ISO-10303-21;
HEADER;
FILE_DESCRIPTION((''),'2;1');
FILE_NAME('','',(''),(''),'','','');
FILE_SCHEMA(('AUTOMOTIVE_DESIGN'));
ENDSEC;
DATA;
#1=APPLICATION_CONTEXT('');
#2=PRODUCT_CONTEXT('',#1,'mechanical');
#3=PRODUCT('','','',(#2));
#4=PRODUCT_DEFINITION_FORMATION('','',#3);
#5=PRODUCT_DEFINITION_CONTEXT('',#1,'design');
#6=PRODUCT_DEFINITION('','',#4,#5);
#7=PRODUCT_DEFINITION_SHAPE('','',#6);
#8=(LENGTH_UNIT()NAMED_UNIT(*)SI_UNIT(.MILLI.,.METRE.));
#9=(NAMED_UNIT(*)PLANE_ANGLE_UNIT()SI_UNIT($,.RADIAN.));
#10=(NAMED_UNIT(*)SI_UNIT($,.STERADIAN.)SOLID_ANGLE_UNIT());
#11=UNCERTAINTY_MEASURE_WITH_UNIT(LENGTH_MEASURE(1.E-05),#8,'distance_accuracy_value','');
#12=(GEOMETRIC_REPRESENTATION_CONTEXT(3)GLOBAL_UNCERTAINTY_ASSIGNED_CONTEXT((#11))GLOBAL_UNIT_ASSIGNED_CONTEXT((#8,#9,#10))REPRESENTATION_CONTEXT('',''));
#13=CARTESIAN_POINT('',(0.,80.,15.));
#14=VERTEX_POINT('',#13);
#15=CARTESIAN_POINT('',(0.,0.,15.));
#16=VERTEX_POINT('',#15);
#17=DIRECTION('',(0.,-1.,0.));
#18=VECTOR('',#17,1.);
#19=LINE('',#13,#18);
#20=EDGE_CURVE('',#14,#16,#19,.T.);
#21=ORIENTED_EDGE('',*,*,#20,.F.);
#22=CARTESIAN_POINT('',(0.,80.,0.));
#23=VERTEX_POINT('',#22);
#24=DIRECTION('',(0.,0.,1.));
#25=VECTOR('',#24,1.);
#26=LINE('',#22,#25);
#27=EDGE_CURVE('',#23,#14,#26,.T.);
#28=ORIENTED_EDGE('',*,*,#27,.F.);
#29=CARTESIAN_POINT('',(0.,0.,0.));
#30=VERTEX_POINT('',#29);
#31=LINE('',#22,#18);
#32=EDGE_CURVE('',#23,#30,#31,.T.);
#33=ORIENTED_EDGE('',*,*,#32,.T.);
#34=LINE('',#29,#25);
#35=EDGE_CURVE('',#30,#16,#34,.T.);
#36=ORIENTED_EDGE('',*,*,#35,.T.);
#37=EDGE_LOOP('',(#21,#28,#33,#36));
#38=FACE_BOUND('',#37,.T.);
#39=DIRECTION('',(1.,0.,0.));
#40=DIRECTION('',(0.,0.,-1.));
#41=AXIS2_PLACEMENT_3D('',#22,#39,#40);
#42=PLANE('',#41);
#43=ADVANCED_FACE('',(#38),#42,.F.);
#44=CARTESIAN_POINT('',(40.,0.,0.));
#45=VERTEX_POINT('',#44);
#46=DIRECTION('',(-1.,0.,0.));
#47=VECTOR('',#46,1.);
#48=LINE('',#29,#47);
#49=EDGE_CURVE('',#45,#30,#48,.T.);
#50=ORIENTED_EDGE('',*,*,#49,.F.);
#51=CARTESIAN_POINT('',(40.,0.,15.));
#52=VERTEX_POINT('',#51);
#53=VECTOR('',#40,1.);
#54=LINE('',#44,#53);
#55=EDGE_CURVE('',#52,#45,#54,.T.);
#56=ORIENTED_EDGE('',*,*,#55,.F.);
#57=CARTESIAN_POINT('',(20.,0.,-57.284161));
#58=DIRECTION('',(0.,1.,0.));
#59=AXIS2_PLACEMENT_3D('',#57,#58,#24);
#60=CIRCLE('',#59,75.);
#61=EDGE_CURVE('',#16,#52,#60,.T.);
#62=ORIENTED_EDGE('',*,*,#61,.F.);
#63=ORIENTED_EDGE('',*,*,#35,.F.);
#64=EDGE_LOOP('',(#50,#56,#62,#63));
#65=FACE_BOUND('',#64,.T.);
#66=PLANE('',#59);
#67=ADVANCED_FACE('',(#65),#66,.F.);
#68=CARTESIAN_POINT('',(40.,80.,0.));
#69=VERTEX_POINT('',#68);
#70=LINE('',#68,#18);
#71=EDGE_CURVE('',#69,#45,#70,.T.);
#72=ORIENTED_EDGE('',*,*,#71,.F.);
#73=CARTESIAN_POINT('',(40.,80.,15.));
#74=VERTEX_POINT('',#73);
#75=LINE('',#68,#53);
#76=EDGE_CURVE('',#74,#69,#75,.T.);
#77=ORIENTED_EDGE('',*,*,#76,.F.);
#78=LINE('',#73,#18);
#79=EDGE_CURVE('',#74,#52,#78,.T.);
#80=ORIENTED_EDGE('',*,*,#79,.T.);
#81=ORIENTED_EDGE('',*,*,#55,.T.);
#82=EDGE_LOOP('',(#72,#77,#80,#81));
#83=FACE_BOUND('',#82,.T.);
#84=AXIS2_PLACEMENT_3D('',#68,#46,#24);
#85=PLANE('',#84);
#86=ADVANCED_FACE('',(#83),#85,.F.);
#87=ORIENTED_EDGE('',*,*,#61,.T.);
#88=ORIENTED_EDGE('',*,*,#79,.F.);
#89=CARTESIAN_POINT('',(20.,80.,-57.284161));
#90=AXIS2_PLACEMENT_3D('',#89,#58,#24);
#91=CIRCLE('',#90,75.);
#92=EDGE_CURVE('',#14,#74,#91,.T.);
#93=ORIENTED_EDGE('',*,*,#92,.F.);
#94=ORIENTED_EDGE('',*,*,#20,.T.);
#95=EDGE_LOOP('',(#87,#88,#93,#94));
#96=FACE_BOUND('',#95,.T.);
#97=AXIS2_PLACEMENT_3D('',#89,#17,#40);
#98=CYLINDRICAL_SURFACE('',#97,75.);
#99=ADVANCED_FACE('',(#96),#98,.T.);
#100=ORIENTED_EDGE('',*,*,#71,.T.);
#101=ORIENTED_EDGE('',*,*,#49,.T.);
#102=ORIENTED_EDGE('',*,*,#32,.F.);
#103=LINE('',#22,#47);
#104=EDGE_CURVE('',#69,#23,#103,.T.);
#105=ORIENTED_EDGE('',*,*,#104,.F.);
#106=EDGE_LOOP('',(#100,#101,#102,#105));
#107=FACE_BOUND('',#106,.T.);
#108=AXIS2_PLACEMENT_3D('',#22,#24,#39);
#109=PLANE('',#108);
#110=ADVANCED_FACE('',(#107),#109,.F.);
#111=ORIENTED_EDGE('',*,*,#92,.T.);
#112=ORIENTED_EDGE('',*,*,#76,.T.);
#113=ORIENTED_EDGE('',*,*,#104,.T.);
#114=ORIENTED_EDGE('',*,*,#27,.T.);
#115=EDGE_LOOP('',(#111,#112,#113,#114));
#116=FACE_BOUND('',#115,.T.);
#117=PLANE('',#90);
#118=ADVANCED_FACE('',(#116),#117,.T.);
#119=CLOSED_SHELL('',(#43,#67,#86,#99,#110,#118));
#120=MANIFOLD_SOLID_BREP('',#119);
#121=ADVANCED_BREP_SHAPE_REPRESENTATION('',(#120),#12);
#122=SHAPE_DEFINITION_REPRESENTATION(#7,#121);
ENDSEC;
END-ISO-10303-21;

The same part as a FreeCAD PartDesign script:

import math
import FreeCAD as App
import Part
import Sketcher

doc = App.newDocument("Part")
body = doc.addObject("PartDesign::Body", "Body")

# Sketch on XZ plane
sketch1 = doc.addObject("Sketcher::SketchObject", "Sketch")
body.addObject(sketch1)
sketch1.AttachmentSupport = (doc.XZ_Plane, [""])
sketch1.MapMode = "FlatFace"
sketch1.addGeometry(Part.LineSegment(App.Vector(40, 0, 0), App.Vector(0, 0, 0)), False)
sketch1.addGeometry(Part.LineSegment(App.Vector(0, 0, 0), App.Vector(0, 15, 0)), False)
sketch1.addGeometry(Part.ArcOfCircle(Part.Circle(App.Vector(20, -57, 0), App.Vector(0, 0, 1), 75), math.radians(75), math.radians(105)), False)
sketch1.addGeometry(Part.LineSegment(App.Vector(40, 15, 0), App.Vector(40, 0, 0)), False)
sketch1.addConstraint(Sketcher.Constraint("Coincident", 0, 2, 1, 1))
sketch1.addConstraint(Sketcher.Constraint("Coincident", 1, 2, 2, 2))
sketch1.addConstraint(Sketcher.Constraint("Coincident", 2, 1, 3, 1))
sketch1.addConstraint(Sketcher.Constraint("Coincident", 3, 2, 0, 1))
sketch1.addConstraint(Sketcher.Constraint("Horizontal", 0))
sketch1.addConstraint(Sketcher.Constraint("Vertical", 1))
sketch1.addConstraint(Sketcher.Constraint("Vertical", 3))
sketch1.addConstraint(Sketcher.Constraint("Coincident", 0, 2, -1, 1))
sketch1.addConstraint(Sketcher.Constraint("Horizontal", 1, 2, 2, 1))
sketch1.addConstraint(Sketcher.Constraint("Radius", 2, 75.0))
sketch1.addConstraint(Sketcher.Constraint("DistanceX", 0, 2, 0, 1, 40.0))
sketch1.addConstraint(Sketcher.Constraint("DistanceY", 1, 1, 1, 2, 15.0))
pad1 = doc.addObject("PartDesign::Pad", "Pad")
body.addObject(pad1)
pad1.Profile = sketch1
pad1.Length = 80
pad1.Reversed = True

doc.recompute()
